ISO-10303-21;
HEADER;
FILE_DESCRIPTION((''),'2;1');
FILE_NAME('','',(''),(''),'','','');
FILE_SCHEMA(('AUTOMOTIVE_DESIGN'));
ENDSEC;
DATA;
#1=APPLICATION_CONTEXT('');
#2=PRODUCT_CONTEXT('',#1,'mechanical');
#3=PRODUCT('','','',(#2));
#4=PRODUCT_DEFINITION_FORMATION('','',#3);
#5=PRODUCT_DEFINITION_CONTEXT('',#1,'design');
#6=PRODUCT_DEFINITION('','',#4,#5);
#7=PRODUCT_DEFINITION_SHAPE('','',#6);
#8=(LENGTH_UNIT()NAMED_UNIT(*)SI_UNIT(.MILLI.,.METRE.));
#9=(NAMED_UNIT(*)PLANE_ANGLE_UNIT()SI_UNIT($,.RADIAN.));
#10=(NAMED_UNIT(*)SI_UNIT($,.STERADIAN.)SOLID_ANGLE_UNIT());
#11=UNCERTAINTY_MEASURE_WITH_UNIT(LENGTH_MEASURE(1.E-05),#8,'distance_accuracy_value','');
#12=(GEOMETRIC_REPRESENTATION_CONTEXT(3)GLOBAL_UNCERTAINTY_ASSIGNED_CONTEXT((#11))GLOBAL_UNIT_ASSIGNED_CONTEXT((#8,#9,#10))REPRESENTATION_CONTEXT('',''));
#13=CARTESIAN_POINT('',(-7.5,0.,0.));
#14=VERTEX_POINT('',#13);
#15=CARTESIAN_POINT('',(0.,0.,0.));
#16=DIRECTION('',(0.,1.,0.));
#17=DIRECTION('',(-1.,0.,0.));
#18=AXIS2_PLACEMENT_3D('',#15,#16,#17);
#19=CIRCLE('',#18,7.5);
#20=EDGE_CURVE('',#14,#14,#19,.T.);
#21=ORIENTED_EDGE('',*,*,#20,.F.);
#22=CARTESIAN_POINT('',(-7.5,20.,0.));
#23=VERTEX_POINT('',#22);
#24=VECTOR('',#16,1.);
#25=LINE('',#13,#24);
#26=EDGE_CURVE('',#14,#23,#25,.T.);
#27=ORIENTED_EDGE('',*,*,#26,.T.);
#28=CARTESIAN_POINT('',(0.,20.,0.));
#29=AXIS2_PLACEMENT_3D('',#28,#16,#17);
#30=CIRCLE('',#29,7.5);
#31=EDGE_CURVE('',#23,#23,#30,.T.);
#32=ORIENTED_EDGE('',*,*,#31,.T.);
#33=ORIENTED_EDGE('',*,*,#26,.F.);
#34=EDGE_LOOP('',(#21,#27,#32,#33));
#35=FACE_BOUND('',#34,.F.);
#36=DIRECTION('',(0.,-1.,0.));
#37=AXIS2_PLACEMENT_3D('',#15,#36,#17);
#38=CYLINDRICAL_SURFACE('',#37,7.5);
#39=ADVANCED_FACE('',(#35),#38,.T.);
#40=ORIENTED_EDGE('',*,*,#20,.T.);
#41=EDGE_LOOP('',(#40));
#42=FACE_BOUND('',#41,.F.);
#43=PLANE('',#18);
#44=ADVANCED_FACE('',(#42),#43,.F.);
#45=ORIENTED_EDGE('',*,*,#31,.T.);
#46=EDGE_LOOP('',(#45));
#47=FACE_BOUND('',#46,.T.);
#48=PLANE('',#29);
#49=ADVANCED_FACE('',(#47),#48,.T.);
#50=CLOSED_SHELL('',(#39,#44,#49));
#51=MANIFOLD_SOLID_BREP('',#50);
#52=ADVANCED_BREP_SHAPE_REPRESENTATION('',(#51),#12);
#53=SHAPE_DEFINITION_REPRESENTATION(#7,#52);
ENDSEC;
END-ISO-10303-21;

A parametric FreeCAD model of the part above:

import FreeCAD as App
import Part
import Sketcher
from FreeCAD import Vector
Q = App.Units.Quantity

doc = App.newDocument("Part")
params = doc.addObject("Spreadsheet::Sheet", "Params")
for row, (alias, value) in enumerate([
    ("sketch1_diameter", "15 mm"),
    ("pad1_length", "20 mm"),
], start=1):
    params.set(f"A{row}", alias)
    params.set(f"B{row}", "=" + value)
    params.setAlias(f"B{row}", alias)

body = doc.addObject("PartDesign::Body", "Body")

# Sketch on XZ plane
sketch1 = body.newObject("Sketcher::SketchObject", "Sketch")
sketch1.AttachmentSupport = (doc.getObject("XZ_Plane"), [""])
sketch1.MapMode = "FlatFace"
sketch1.addGeometry(Part.Circle(Vector(0, 0, 0), Vector(0, 0, 1), 8), False)
sketch1.addConstraint(Sketcher.Constraint("Coincident", 0, 3, -1, 1))
sketch1.addConstraint(Sketcher.Constraint("Diameter", 0, Q("15 mm")))
sketch1.setExpression("Constraints[1]", "Params.sketch1_diameter")
pad1 = body.newObject("PartDesign::Pad", "Pad")
pad1.Profile = sketch1
pad1.setExpression("Length", "Params.pad1_length")
pad1.Reversed = True

doc.recompute()
